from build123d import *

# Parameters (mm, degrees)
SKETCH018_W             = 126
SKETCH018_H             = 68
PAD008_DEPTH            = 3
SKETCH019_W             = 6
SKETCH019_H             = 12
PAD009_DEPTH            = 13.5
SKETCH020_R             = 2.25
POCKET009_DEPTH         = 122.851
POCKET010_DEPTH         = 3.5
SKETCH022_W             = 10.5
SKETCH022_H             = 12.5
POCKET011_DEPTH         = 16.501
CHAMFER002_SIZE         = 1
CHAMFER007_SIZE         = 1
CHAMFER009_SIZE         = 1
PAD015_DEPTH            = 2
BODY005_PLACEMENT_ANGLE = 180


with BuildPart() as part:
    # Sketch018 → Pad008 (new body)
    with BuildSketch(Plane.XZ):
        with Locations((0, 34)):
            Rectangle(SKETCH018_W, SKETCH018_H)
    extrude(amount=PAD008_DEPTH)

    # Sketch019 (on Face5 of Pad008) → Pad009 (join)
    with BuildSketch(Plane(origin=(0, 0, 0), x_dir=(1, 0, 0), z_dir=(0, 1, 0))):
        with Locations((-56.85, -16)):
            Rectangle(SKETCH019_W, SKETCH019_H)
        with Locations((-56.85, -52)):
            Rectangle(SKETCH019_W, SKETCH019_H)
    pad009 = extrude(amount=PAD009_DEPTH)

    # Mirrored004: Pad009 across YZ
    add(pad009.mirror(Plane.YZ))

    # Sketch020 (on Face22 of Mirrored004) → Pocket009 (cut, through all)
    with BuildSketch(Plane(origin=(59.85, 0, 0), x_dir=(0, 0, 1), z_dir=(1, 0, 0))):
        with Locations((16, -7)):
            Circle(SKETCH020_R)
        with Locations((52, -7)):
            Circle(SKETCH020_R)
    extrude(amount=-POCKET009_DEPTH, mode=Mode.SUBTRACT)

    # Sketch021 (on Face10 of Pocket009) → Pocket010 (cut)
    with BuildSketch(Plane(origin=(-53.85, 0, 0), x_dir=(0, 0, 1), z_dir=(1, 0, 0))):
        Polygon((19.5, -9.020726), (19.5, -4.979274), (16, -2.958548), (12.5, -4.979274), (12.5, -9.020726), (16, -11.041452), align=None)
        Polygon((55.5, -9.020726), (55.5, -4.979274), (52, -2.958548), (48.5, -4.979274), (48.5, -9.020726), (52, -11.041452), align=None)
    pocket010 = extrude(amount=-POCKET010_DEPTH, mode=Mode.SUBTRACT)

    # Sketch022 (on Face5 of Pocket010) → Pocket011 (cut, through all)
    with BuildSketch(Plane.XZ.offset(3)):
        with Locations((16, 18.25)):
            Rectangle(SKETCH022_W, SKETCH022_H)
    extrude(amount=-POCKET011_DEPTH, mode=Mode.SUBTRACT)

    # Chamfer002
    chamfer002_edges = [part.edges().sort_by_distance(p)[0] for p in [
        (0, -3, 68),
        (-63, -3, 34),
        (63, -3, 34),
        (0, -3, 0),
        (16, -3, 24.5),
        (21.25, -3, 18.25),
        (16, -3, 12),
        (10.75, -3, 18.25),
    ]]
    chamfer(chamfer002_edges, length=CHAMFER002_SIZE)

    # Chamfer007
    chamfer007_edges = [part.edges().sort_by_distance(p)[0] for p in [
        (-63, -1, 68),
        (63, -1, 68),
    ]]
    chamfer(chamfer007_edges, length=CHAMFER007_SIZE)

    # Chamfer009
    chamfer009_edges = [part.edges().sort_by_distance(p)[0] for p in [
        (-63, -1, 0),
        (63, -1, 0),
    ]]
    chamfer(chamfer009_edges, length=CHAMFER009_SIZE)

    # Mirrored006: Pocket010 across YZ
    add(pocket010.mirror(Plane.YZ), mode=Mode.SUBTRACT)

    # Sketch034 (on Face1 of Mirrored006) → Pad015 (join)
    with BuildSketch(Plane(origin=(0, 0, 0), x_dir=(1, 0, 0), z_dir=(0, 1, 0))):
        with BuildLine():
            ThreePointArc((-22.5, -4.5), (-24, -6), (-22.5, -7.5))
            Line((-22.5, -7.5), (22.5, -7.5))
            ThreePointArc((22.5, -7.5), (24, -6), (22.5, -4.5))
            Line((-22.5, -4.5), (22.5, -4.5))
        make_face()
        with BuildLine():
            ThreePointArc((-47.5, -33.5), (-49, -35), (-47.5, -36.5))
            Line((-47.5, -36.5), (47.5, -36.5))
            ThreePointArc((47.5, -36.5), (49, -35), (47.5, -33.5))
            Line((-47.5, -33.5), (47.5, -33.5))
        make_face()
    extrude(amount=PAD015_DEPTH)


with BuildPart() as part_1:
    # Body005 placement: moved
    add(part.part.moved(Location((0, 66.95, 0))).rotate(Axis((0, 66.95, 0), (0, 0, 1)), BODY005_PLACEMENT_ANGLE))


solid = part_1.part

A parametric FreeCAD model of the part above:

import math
import FreeCAD as App
import Part
import Sketcher

V = App.Vector
Q = App.Units.Quantity


def edges_at(feature, points):
    """Names of the edges that pass closest to the given points."""
    edges = feature.Shape.Edges
    near = lambda p: min(range(len(edges)), key=lambda i: edges[i].distToShape(Part.Vertex(*p))[0])
    return sorted({f"Edge{near(p) + 1}" for p in points})


def add_polygon(sketch, points):
    """Adds a closed chain of lines whose ends are joined by coincident constraints."""
    first, n = sketch.GeometryCount, len(points)
    for a, b in zip(points, points[1:] + points[:1]):
        sketch.addGeometry(Part.LineSegment(App.Vector(*a, 0), App.Vector(*b, 0)), False)
    for i in range(n):
        sketch.addConstraint(Sketcher.Constraint("Coincident", first + i, 2, first + (i + 1) % n, 1))

doc = App.newDocument("Part")
params = doc.addObject("Spreadsheet::Sheet", "Params")
for row, (alias, value) in enumerate([
    ("sketch1_width", "126 mm"),
    ("sketch1_height", "68 mm"),
    ("pad1_length", "3 mm"),
    ("sketch2_width", "6 mm"),
    ("sketch2_height", "12 mm"),
    ("pad2_length", "13.5 mm"),
    ("sketch3_diameter", "4.5 mm"),
    ("pocket2_length", "3.5 mm"),
    ("sketch5_width", "10.5 mm"),
    ("sketch5_height", "12.5 mm"),
    ("chamfer_size", "1 mm"),
    ("chamfer2_size", "1 mm"),
    ("chamfer3_size", "1 mm"),
    ("sketch6_radius", "1.5 mm"),
    ("sketch6_width", "45 mm"),
    ("sketch6_width2", "95 mm"),
    ("pad3_length", "2 mm"),
], start=1):
    params.set(f"A{row}", alias)
    params.set(f"B{row}", "=" + value)
    params.setAlias(f"B{row}", alias)

body = doc.addObject("PartDesign::Body", "Body")

sketch1 = body.newObject("Sketcher::SketchObject", "Sketch")
sketch1.AttachmentSupport = (doc.getObject("XZ_Plane"), [""])
sketch1.MapMode = "FlatFace"
add_polygon(sketch1, [(-63, 68), (-63, 0), (63, 0), (63, 68)])
sketch1.addConstraint([
    Sketcher.Constraint("Vertical", 0),
    Sketcher.Constraint("Horizontal", 1),
    Sketcher.Constraint("Vertical", 2),
    Sketcher.Constraint("Horizontal", 3),
    Sketcher.Constraint("Symmetric", 0, 2, 1, 2, -1, 1),
    Sketcher.Constraint("DistanceX", 1, 1, 1, 2, Q("126 mm")),
    Sketcher.Constraint("DistanceY", 0, 2, 0, 1, Q("68 mm")),
])
sketch1.setExpression("Constraints[9]", "Params.sketch1_width")
sketch1.setExpression("Constraints[10]", "Params.sketch1_height")
pad1 = body.newObject("PartDesign::Pad", "Pad")
pad1.Profile = sketch1
pad1.setExpression("Length", "Params.pad1_length")

sketch2 = body.newObject("Sketcher::SketchObject", "Sketch001")
sketch2.AttachmentSupport = (doc.getObject("XZ_Plane"), [""])
sketch2.MapMode = "FlatFace"
add_polygon(sketch2, [(-60, 10), (-60, 22), (-54, 22), (-54, 10)])
add_polygon(sketch2, [(-60, 46), (-60, 58), (-54, 58), (-54, 46)])
sketch2.addConstraint([
    Sketcher.Constraint("Vertical", 0),
    Sketcher.Constraint("Horizontal", 1),
    Sketcher.Constraint("Vertical", 2),
    Sketcher.Constraint("Horizontal", 3),
    Sketcher.Constraint("Vertical", 4),
    Sketcher.Constraint("Horizontal", 5),
    Sketcher.Constraint("Vertical", 6),
    Sketcher.Constraint("Horizontal", 7),
    Sketcher.Constraint("Vertical", 3, 2, 4, 2),
    Sketcher.Constraint("Vertical", 2, 2, 5, 2),
    Sketcher.Constraint("Equal", 2, 4),
    Sketcher.Constraint("DistanceX", 1, 1, 1, 2, Q("6 mm")),
    Sketcher.Constraint("DistanceY", 0, 1, 0, 2, Q("12 mm")),
    Sketcher.Constraint("DistanceY", -1, 1, 0, 2, Q("22 mm")),
    Sketcher.Constraint("DistanceY", -1, 1, 4, 2, Q("58 mm")),
    Sketcher.Constraint("DistanceX", 0, 2, -1, 1, Q("59.85 mm")),
])
sketch2.setExpression("Constraints[19]", "Params.sketch2_width")
sketch2.setExpression("Constraints[20]", "Params.sketch2_height")
pad2 = body.newObject("PartDesign::Pad", "Pad001")
pad2.Profile = sketch2
pad2.setExpression("Length", "Params.pad2_length")
pad2.Reversed = True
doc.recompute()

mirrored = body.newObject("PartDesign::Mirrored", "Mirrored")
mirrored.Originals = [pad2]
mirrored.MirrorPlane = (doc.getObject("YZ_Plane"), [""])
body.Tip = mirrored

sketch3 = body.newObject("Sketcher::SketchObject", "Sketch002")
sketch3.AttachmentSupport = (doc.getObject("YZ_Plane"), [""])
sketch3.MapMode = "FlatFace"
sketch3.AttachmentOffset = App.Placement(V(0, 0, 59.85), App.Rotation())
sketch3.addGeometry([
    Part.Circle(V(7, 16, 0), V(0, 0, 1), 2.2),
    Part.Circle(V(7, 52, 0), V(0, 0, 1), 2.2),
], False)
sketch3.addConstraint([
    Sketcher.Constraint("Equal", 0, 1),
    Sketcher.Constraint("Vertical", 0, 3, 1, 3),
    Sketcher.Constraint("Diameter", 0, Q("4.5 mm")),
    Sketcher.Constraint("DistanceX", -1, 1, 0, 3, Q("7 mm")),
    Sketcher.Constraint("DistanceY", -1, 1, 0, 3, Q("16 mm")),
    Sketcher.Constraint("DistanceY", -1, 1, 1, 3, Q("52 mm")),
])
sketch3.setExpression("Constraints[2]", "Params.sketch3_diameter")
pocket1 = body.newObject("PartDesign::Pocket", "Pocket")
pocket1.Profile = sketch3
pocket1.Type = "ThroughAll"

sketch4 = body.newObject("Sketcher::SketchObject", "Sketch003")
sketch4.AttachmentSupport = (doc.getObject("YZ_Plane"), [""])
sketch4.MapMode = "FlatFace"
sketch4.AttachmentOffset = App.Placement(V(0, 0, -53.85), App.Rotation())
add_polygon(sketch4, [(9, 19.5), (5, 19.5), (3, 16), (5, 12.5), (9, 12.5), (11, 16)])
add_polygon(sketch4, [(9, 55.5), (5, 55.5), (3, 52), (5, 48.5), (9, 48.5), (11, 52)])
sketch4.addConstraint([
    Sketcher.Constraint("Horizontal", 0),
    Sketcher.Constraint("Horizontal", 3),
    Sketcher.Constraint("Horizontal", 6),
    Sketcher.Constraint("Horizontal", 9),
    Sketcher.Constraint("Parallel", 1, 4),
    Sketcher.Constraint("Parallel", 2, 5),
    Sketcher.Constraint("Parallel", 4, 7),
    Sketcher.Constraint("Parallel", 5, 8),
    Sketcher.Constraint("Parallel", 7, 10),
    Sketcher.Constraint("Parallel", 8, 11),
    Sketcher.Constraint("Horizontal", 1, 2, 4, 2),
    Sketcher.Constraint("Horizontal", 7, 2, 10, 2),
    Sketcher.Constraint("Vertical", 0, 2, 2, 2),
    Sketcher.Constraint("Vertical", 3, 2, 5, 2),
    Sketcher.Constraint("Vertical", 2, 2, 6, 2),
    Sketcher.Constraint("Vertical", 1, 2, 7, 2),
    Sketcher.Constraint("Vertical", 6, 2, 8, 2),
    Sketcher.Constraint("Vertical", 5, 2, 9, 2),
    Sketcher.Constraint("Angle", 1, Q("-120.000001 deg")),
    Sketcher.Constraint("DistanceY", -1, 1, 1, 2, Q("16 mm")),
    Sketcher.Constraint("DistanceY", -1, 1, 7, 2, Q("52 mm")),
    Sketcher.Constraint("DistanceY", 2, 2, 0, 2, Q("7 mm")),
    Sketcher.Constraint("DistanceX", 0, 2, 0, 1, Q("4.041452 mm")),
    Sketcher.Constraint("DistanceX", -1, 1, 1, 2, Q("2.958548 mm")),
])
pocket2 = body.newObject("PartDesign::Pocket", "Pocket001")
pocket2.Profile = sketch4
pocket2.setExpression("Length", "Params.pocket2_length")

sketch5 = body.newObject("Sketcher::SketchObject", "Sketch004")
sketch5.AttachmentSupport = (doc.getObject("XZ_Plane"), [""])
sketch5.MapMode = "FlatFace"
sketch5.AttachmentOffset = App.Placement(V(0, 0, 3), App.Rotation())
add_polygon(sketch5, [(11, 24), (11, 12), (21, 12), (21, 24)])
sketch5.addConstraint([
    Sketcher.Constraint("Vertical", 0),
    Sketcher.Constraint("Horizontal", 1),
    Sketcher.Constraint("Vertical", 2),
    Sketcher.Constraint("Horizontal", 3),
    Sketcher.Constraint("DistanceX", 1, 1, 1, 2, Q("10.5 mm")),
    Sketcher.Constraint("DistanceY", 0, 2, 0, 1, Q("12.5 mm")),
    Sketcher.Constraint("DistanceY", -1, 1, 0, 2, Q("12 mm")),
    Sketcher.Constraint("DistanceX", -1, 1, 0, 2, Q("10.75 mm")),
])
sketch5.setExpression("Constraints[8]", "Params.sketch5_width")
sketch5.setExpression("Constraints[9]", "Params.sketch5_height")
pocket3 = body.newObject("PartDesign::Pocket", "Pocket002")
pocket3.Profile = sketch5
pocket3.Type = "ThroughAll"
doc.recompute()

chamfer = body.newObject("PartDesign::Chamfer", "Chamfer")
chamfer.Base = (pocket3, edges_at(pocket3, [
    (0, -3, 68),
    (-63, -3, 34),
    (63, -3, 34),
    (0, -3, 0),
    (16, -3, 24.5),
    (21.25, -3, 18.25),
    (16, -3, 12),
    (10.75, -3, 18.25),
]))
chamfer.setExpression("Size", "Params.chamfer_size")
doc.recompute()

chamfer2 = body.newObject("PartDesign::Chamfer", "Chamfer001")
chamfer2.Base = (chamfer, edges_at(chamfer, [(-63, -1, 68), (63, -1, 68)]))
chamfer2.setExpression("Size", "Params.chamfer2_size")
doc.recompute()

chamfer3 = body.newObject("PartDesign::Chamfer", "Chamfer002")
chamfer3.Base = (chamfer2, edges_at(chamfer2, [(-63, -1, 0), (63, -1, 0)]))
chamfer3.setExpression("Size", "Params.chamfer3_size")
doc.recompute()

mirrored2 = body.newObject("PartDesign::Mirrored", "Mirrored001")
mirrored2.Originals = [pocket2]
mirrored2.MirrorPlane = (doc.getObject("YZ_Plane"), [""])
body.Tip = mirrored2

sketch6 = body.newObject("Sketcher::SketchObject", "Sketch005")
sketch6.AttachmentSupport = (doc.getObject("XZ_Plane"), [""])
sketch6.MapMode = "FlatFace"
sketch6.addGeometry([
    Part.ArcOfCircle(Part.Circle(V(-22.5, 6, 0), V(0, 0, 1), 1.5), math.radians(90), math.radians(270)),
    Part.LineSegment(V(-22.5, 7.5, 0), V(22.5, 7.5, 0)),
    Part.ArcOfCircle(Part.Circle(V(22.5, 6, 0), V(0, 0, 1), 1.5), math.radians(-90), math.radians(90)),
    Part.LineSegment(V(22.5, 4.5, 0), V(-22.5, 4.5, 0)),
    Part.ArcOfCircle(Part.Circle(V(-47.5, 35, 0), V(0, 0, 1), 1.5), math.radians(90), math.radians(270)),
    Part.LineSegment(V(-47.5, 36.5, 0), V(47.5, 36.5, 0)),
    Part.ArcOfCircle(Part.Circle(V(47.5, 35, 0), V(0, 0, 1), 1.5), math.radians(-90), math.radians(90)),
    Part.LineSegment(V(47.5, 33.5, 0), V(-47.5, 33.5, 0)),
], False)
sketch6.addConstraint([
    Sketcher.Constraint("Tangent", 0, 1, 1, 1),
    Sketcher.Constraint("Tangent", 1, 2, 2, 2),
    Sketcher.Constraint("Tangent", 2, 1, 3, 1),
    Sketcher.Constraint("Tangent", 3, 2, 0, 2),
    Sketcher.Constraint("Tangent", 4, 1, 5, 1),
    Sketcher.Constraint("Tangent", 5, 2, 6, 2),
    Sketcher.Constraint("Tangent", 6, 1, 7, 1),
    Sketcher.Constraint("Tangent", 7, 2, 4, 2),
    Sketcher.Constraint("Horizontal", 1),
    Sketcher.Constraint("Horizontal", 3),
    Sketcher.Constraint("Horizontal", 5),
    Sketcher.Constraint("Horizontal", 7),
    Sketcher.Constraint("Equal", 2, 4),
    Sketcher.Constraint("Radius", 0, Q("1.5 mm")),
    Sketcher.Constraint("DistanceX", 1, 1, 1, 2, Q("45 mm")),
    Sketcher.Constraint("DistanceX", 5, 1, 5, 2, Q("95 mm")),
    Sketcher.Constraint("DistanceY", -1, 1, 0, 3, Q("6 mm")),
    Sketcher.Constraint("DistanceY", -1, 1, 4, 3, Q("35 mm")),
    Sketcher.Constraint("DistanceX", 4, 3, 0, 3, Q("25 mm")),
    Sketcher.Constraint("DistanceX", 0, 3, -1, 1, Q("22.5 mm")),
])
sketch6.setExpression("Constraints[13]", "Params.sketch6_radius")
sketch6.setExpression("Constraints[14]", "Params.sketch6_width")
sketch6.setExpression("Constraints[15]", "Params.sketch6_width2")
pad3 = body.newObject("PartDesign::Pad", "Pad002")
pad3.Profile = sketch6
pad3.setExpression("Length", "Params.pad3_length")
pad3.Reversed = True
body2 = doc.addObject("PartDesign::Body", "Body001")
doc.recompute()

body.Placement = App.Placement(V(0, 66.95, 0), App.Rotation(V(0, 0, 1), 180))
boolean = body2.newObject("PartDesign::Boolean", "Boolean")
boolean.Type = "Fuse"
boolean.addObjects([body])

doc.recompute()
